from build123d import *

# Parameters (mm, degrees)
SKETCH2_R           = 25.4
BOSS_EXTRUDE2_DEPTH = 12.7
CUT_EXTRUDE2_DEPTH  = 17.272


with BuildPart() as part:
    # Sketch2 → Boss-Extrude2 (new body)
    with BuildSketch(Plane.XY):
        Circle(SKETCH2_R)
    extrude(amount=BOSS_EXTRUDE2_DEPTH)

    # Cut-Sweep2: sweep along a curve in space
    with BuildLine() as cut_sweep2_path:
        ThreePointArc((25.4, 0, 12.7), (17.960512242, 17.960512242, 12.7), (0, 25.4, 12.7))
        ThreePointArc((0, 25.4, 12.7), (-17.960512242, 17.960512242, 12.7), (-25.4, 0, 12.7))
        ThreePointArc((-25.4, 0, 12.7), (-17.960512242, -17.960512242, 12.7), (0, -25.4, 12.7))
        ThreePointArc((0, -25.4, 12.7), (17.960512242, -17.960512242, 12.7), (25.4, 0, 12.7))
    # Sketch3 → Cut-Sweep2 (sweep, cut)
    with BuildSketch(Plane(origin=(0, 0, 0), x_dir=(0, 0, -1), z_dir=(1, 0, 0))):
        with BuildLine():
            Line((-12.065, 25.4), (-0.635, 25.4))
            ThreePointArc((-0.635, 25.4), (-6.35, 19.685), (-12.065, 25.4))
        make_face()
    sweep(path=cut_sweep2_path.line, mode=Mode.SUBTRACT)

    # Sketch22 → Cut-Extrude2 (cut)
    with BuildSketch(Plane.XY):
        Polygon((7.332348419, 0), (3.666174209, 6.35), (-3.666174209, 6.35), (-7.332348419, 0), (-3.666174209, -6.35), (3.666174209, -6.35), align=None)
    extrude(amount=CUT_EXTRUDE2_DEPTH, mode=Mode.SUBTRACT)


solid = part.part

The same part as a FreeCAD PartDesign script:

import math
import FreeCAD as App
import Part
import Sketcher
from FreeCAD import Vector
Q = App.Units.Quantity

doc = App.newDocument("Part")
body = doc.addObject("PartDesign::Body", "Body")

# Sketch on XY plane
sketch1 = body.newObject("Sketcher::SketchObject", "Sketch")
sketch1.AttachmentSupport = (doc.getObject("XY_Plane"), [""])
sketch1.MapMode = "FlatFace"
sketch1.addGeometry(Part.Circle(Vector(0, 0, 0), Vector(0, 0, 1), 25), False)
sketch1.addConstraint([
    Sketcher.Constraint("Coincident", 0, 3, -1, 1),
    Sketcher.Constraint("Diameter", 0, Q("2 in")),
])
pad1 = body.newObject("PartDesign::Pad", "Pad")
pad1.Profile = sketch1
pad1.Length = Q("0.5 in")

# Sketch on YZ plane
sketch2 = body.newObject("Sketcher::SketchObject", "Sketch001")
sketch2.AttachmentSupport = (doc.getObject("YZ_Plane"), [""])
sketch2.MapMode = "FlatFace"
sketch2.addGeometry([
    Part.LineSegment(Vector(25, 1, 0), Vector(25, 12, 0)),
    Part.ArcOfCircle(Part.Circle(Vector(25, 6, 0), Vector(0, 0, 1), 6), math.radians(90), math.radians(270)),
], False)
sketch2.addConstraint([
    Sketcher.Constraint("Coincident", 0, 1, 1, 2),
    Sketcher.Constraint("Coincident", 1, 1, 0, 2),
    Sketcher.Constraint("Vertical", 0),
    Sketcher.Constraint("Vertical", 1, 3, 0, 1),
    Sketcher.Constraint("DistanceX", -1, 1, 1, 3, Q("1 in")),
    Sketcher.Constraint("Radius", 1, Q("0.225 in")),
    Sketcher.Constraint("DistanceY", -1, 1, 1, 3, Q("0.25 in")),
])

# Sketch on XY plane
sketch3 = body.newObject("Sketcher::SketchObject", "Sketch002")
sketch3.AttachmentSupport = (doc.getObject("XY_Plane"), [""])
sketch3.MapMode = "FlatFace"
sketch3.AttachmentOffset = App.Placement(Vector(0, 0, 0.5 * 25.4), App.Rotation())
sketch3.addGeometry([
    Part.ArcOfCircle(Part.Circle(Vector(0, 0, 0), Vector(0, 0, 1), 25), math.radians(0), math.radians(90)),
    Part.ArcOfCircle(Part.Circle(Vector(0, 0, 0), Vector(0, 0, 1), 25), math.radians(90), math.radians(180)),
    Part.ArcOfCircle(Part.Circle(Vector(0, 0, 0), Vector(0, 0, 1), 25), math.radians(180), math.radians(270)),
    Part.ArcOfCircle(Part.Circle(Vector(0, 0, 0), Vector(0, 0, 1), 25), math.radians(-90), math.radians(0)),
], False)
sketch3.addConstraint([
    Sketcher.Constraint("Tangent", 0, 2, 1, 1),
    Sketcher.Constraint("Tangent", 1, 2, 2, 1),
    Sketcher.Constraint("Tangent", 2, 2, 3, 1),
    Sketcher.Constraint("Tangent", 3, 2, 0, 1),
    Sketcher.Constraint("Coincident", 0, 3, -1, 1),
    Sketcher.Constraint("Equal", 0, 1),
    Sketcher.Constraint("PointOnObject", 0, 2, -2),
    Sketcher.Constraint("PointOnObject", 1, 2, -1),
    Sketcher.Constraint("PointOnObject", 2, 2, -2),
    Sketcher.Constraint("PointOnObject", 3, 2, -1),
    Sketcher.Constraint("Radius", 0, Q("1 in")),
])
doc.recompute()

subtractivepipe = body.newObject("PartDesign::SubtractivePipe", "SubtractivePipe")
subtractivepipe.Profile = sketch2
subtractivepipe.Spine = (sketch3, ["Edge1", "Edge2", "Edge3", "Edge4"])

# Sketch on XY plane
sketch4 = body.newObject("Sketcher::SketchObject", "Sketch003")
sketch4.AttachmentSupport = (doc.getObject("XY_Plane"), [""])
sketch4.MapMode = "FlatFace"
sketch4.addGeometry([
    Part.LineSegment(Vector(7, 0, 0), Vector(4, 6, 0)),  # 0
    Part.LineSegment(Vector(4, 6, 0), Vector(-4, 6, 0)),  # 1
    Part.LineSegment(Vector(-4, 6, 0), Vector(-7, 0, 0)),  # 2
    Part.LineSegment(Vector(-7, 0, 0), Vector(-4, -6, 0)),  # 3
    Part.LineSegment(Vector(-4, -6, 0), Vector(4, -6, 0)),  # 4
    Part.LineSegment(Vector(4, -6, 0), Vector(7, 0, 0)),  # 5
], False)
sketch4.addConstraint([
    Sketcher.Constraint("Coincident", 0, 2, 1, 1),
    Sketcher.Constraint("Coincident", 1, 2, 2, 1),
    Sketcher.Constraint("Coincident", 2, 2, 3, 1),
    Sketcher.Constraint("Coincident", 3, 2, 4, 1),
    Sketcher.Constraint("Coincident", 4, 2, 5, 1),
    Sketcher.Constraint("Coincident", 5, 2, 0, 1),
    Sketcher.Constraint("Horizontal", 1),
    Sketcher.Constraint("Horizontal", 4),
    Sketcher.Constraint("Symmetric", 0, 2, 3, 2, -1, 1),
    Sketcher.Constraint("Symmetric", 2, 2, 5, 2, -1, 1),
    Sketcher.Constraint("PointOnObject", 2, 2, -1),
    Sketcher.Constraint("Parallel", 2, 5),
    Sketcher.Constraint("Vertical", 1, 2, 3, 2),
    Sketcher.Constraint("Angle", 0, Q("120 deg")),
    Sketcher.Constraint("DistanceY", 3, 2, 1, 2, Q("0.5 in")),
    Sketcher.Constraint("DistanceX", 1, 2, 1, 1, Q("7.332348 mm")),
])
pocket1 = body.newObject("PartDesign::Pocket", "Pocket")
pocket1.Profile = sketch4
pocket1.Length = Q("0.68 in")
pocket1.Reversed = True

doc.recompute()
